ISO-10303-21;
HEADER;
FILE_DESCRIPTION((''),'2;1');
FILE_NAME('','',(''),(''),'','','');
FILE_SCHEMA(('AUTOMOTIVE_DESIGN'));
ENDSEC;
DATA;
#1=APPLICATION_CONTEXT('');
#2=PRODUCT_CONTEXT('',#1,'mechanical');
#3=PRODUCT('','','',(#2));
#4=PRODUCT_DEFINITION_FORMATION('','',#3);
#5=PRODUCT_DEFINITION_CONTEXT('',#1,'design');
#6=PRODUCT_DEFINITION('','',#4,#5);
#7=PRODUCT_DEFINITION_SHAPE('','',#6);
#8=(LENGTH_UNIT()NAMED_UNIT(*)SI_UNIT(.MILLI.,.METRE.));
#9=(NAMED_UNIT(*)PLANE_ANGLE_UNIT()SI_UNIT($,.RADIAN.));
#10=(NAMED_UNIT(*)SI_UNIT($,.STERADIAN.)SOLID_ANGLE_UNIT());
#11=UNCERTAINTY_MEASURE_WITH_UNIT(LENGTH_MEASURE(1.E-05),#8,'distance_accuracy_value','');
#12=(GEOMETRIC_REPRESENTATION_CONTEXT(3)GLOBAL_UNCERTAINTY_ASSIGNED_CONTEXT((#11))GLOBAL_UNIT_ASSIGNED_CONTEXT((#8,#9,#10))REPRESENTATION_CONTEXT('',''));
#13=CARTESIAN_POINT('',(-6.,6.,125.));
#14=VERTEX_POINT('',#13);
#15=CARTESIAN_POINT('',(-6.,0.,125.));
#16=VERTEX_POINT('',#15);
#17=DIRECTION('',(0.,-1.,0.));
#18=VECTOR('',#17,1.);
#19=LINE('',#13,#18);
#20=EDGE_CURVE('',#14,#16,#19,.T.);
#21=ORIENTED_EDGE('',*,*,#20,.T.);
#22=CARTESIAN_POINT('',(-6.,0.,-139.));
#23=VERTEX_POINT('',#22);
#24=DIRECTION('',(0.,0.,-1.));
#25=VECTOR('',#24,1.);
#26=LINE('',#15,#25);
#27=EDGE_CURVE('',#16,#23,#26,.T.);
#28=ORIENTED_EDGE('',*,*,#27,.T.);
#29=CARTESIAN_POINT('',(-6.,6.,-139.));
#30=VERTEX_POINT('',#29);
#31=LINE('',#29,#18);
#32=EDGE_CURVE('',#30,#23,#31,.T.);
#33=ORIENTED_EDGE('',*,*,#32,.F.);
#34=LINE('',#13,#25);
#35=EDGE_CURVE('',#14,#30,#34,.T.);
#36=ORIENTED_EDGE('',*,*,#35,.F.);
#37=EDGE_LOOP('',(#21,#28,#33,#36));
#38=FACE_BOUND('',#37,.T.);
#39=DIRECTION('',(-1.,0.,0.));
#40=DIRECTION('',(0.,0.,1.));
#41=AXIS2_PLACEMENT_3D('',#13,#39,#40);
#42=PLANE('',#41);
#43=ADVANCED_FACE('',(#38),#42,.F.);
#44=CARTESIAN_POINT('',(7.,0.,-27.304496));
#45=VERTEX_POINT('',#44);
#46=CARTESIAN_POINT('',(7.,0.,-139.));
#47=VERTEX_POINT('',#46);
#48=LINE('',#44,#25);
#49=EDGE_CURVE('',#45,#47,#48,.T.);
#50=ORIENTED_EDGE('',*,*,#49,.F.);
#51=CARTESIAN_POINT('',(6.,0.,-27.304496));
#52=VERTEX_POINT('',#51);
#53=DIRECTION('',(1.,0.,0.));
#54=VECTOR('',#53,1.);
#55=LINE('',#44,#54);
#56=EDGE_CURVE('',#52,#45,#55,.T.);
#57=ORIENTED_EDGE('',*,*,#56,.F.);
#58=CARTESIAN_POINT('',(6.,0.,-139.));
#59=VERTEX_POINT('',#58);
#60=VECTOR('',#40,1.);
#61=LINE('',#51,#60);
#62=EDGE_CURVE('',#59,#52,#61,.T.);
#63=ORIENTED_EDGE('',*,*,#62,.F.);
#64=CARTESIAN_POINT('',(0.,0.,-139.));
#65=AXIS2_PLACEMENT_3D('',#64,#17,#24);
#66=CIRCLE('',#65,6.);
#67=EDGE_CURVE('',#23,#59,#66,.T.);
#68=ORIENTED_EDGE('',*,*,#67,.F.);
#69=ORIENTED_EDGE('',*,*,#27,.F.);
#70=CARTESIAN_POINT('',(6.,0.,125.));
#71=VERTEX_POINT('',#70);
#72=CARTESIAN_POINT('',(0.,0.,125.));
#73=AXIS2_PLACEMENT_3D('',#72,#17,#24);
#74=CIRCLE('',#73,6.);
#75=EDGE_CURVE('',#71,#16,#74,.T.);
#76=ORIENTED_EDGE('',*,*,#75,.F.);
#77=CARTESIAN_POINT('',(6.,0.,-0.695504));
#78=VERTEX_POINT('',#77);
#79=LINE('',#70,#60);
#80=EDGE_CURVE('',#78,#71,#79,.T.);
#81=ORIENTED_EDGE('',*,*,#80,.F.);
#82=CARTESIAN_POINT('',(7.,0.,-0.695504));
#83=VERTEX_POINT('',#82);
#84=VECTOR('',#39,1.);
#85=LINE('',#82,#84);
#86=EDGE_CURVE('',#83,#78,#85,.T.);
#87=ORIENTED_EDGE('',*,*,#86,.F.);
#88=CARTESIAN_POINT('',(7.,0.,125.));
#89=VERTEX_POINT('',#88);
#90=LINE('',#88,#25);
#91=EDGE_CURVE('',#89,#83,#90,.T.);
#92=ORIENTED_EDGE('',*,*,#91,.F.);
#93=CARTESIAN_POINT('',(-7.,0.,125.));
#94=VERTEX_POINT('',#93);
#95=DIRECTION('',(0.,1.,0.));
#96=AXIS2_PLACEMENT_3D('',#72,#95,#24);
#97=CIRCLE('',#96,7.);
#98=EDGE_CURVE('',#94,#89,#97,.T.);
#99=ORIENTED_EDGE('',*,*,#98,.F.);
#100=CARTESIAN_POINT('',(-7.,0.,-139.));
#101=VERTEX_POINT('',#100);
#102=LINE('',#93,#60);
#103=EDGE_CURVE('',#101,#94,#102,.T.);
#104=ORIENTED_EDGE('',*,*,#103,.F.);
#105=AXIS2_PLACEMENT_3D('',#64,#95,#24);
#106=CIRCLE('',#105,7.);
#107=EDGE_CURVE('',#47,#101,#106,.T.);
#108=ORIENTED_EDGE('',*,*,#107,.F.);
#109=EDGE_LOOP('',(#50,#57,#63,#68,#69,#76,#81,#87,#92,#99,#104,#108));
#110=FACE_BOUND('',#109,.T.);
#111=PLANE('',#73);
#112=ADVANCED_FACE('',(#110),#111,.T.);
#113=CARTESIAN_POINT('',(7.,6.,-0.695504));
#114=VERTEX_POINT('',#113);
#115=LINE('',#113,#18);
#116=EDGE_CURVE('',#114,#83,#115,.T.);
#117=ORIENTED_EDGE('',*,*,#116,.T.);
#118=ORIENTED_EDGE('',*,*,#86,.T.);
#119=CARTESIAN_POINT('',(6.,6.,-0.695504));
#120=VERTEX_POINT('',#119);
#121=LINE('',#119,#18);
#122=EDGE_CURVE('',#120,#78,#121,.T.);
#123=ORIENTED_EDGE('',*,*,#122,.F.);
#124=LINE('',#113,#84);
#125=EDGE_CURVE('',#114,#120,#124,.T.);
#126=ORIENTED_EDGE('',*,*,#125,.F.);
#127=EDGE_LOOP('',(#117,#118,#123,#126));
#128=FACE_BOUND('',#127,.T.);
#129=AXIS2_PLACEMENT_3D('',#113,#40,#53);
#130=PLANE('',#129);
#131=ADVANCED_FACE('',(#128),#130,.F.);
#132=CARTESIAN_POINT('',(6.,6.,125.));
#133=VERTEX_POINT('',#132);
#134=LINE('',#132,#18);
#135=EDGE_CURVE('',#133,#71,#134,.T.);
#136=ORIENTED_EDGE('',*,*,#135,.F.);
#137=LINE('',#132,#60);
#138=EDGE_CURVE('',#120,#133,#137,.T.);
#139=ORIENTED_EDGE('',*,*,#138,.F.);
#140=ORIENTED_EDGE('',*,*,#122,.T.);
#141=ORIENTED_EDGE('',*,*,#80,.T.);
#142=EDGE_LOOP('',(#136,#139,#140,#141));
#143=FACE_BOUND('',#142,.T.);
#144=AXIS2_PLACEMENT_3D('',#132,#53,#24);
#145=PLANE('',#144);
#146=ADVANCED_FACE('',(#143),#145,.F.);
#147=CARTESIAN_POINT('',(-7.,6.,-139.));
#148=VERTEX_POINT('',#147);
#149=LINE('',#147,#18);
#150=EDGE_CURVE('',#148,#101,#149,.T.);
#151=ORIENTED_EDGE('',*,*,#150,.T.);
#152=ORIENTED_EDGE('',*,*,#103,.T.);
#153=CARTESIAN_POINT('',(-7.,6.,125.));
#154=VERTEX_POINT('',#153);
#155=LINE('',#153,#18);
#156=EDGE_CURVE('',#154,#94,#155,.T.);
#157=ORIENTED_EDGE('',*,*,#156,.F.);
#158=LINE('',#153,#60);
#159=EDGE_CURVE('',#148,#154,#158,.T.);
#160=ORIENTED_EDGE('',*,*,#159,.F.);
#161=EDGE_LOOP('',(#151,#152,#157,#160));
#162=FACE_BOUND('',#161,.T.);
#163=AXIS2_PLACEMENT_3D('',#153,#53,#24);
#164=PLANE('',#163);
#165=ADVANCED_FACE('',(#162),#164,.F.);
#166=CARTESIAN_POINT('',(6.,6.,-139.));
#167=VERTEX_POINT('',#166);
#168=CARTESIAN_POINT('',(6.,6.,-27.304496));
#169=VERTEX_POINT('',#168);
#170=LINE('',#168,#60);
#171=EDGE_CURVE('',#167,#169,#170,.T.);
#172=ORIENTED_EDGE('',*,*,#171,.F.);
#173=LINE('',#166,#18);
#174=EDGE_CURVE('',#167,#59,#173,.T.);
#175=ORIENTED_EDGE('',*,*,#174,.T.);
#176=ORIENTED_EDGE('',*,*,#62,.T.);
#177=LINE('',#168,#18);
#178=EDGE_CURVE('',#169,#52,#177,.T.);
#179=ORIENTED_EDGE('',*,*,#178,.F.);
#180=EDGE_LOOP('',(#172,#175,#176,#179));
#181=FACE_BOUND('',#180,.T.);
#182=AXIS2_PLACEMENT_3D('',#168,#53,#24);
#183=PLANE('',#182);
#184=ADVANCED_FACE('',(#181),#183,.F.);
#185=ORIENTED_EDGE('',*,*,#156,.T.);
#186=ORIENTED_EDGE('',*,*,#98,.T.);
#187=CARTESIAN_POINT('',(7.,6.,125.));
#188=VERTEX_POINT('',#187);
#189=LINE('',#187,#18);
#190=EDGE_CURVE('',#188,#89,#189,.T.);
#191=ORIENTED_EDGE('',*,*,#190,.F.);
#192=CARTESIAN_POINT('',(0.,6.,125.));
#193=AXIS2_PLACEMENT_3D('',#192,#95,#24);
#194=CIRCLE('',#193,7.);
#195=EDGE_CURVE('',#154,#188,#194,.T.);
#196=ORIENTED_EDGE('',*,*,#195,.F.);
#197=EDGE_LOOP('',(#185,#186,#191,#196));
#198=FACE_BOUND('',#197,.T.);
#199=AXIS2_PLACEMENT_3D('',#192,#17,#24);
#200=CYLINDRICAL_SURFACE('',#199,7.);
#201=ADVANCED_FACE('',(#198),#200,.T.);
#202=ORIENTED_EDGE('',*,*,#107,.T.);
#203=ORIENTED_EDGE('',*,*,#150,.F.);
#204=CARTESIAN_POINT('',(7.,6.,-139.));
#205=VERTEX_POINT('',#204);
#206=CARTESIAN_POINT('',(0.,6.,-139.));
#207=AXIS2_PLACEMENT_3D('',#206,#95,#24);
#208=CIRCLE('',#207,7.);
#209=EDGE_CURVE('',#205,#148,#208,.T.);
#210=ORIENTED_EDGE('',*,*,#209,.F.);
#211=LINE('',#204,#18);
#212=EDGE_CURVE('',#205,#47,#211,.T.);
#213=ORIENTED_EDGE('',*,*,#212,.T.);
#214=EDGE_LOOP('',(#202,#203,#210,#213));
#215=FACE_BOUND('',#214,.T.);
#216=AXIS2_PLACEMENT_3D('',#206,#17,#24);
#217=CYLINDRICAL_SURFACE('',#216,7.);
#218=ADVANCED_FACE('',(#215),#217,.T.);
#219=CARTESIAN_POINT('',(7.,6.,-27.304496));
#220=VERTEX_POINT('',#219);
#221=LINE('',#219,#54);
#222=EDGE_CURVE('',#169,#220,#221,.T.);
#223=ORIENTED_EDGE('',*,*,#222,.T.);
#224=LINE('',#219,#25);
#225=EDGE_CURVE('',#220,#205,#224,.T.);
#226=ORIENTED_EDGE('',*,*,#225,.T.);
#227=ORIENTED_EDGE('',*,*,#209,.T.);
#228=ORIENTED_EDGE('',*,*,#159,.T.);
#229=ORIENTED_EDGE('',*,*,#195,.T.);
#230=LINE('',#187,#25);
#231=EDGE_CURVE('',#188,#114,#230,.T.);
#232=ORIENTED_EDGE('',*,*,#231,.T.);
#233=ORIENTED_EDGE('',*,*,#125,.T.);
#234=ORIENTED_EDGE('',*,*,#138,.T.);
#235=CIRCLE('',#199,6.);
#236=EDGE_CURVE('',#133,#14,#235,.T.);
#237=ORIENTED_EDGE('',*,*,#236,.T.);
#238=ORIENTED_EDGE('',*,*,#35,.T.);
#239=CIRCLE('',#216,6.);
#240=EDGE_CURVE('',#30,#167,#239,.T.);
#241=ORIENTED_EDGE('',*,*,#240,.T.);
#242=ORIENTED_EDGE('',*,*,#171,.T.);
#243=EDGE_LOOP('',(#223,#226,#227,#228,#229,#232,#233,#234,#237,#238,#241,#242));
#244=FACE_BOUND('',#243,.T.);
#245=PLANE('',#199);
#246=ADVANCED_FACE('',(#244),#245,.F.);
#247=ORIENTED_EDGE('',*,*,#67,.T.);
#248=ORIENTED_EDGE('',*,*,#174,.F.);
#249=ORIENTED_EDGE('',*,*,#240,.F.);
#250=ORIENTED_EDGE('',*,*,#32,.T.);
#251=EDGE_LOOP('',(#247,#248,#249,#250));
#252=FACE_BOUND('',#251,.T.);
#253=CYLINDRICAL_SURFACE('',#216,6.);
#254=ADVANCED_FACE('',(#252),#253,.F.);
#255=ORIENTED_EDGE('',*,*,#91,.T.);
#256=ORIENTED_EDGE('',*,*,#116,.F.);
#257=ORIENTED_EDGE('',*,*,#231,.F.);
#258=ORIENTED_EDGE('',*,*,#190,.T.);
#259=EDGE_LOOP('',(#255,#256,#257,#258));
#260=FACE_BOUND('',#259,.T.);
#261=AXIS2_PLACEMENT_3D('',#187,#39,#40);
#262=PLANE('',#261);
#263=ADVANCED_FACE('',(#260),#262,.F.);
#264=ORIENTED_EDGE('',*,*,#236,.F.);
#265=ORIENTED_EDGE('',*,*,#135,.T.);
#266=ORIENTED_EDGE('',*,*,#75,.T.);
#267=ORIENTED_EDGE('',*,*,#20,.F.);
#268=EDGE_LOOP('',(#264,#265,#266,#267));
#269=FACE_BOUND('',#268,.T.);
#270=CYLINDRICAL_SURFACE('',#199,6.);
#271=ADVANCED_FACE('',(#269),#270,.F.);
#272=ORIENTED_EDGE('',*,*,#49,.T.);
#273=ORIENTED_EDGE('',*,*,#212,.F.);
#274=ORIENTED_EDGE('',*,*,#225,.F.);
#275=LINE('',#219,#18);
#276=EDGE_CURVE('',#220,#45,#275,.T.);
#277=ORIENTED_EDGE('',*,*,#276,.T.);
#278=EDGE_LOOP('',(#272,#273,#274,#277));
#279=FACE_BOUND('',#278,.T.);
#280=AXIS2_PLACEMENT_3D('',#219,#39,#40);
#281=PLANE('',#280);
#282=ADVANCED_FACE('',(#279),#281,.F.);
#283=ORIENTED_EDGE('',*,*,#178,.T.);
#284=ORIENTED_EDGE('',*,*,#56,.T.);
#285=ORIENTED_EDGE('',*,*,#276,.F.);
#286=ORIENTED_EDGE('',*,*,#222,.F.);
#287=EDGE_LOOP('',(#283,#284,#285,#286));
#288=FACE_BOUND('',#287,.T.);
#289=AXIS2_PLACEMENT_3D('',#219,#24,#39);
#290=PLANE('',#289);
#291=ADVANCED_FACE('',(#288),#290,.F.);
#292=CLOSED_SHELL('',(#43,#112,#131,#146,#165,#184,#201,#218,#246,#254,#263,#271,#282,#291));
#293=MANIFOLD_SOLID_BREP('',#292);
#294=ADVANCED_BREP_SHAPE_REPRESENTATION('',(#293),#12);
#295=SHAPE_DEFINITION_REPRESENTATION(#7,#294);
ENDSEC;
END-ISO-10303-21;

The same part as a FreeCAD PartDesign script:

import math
import FreeCAD as App
import Part
import Sketcher
Q = App.Units.Quantity

doc = App.newDocument("Part")
body = doc.addObject("PartDesign::Body", "Body")

# Sketch on XZ plane
sketch1 = doc.addObject("Sketcher::SketchObject", "Sketch")
body.addObject(sketch1)
sketch1.AttachmentSupport = (doc.XZ_Plane, [""])
sketch1.MapMode = "FlatFace"
sketch1.addGeometry([
    Part.LineSegment(App.Vector(-6, 125, 0), App.Vector(-6, -139, 0)),  # 0
    Part.ArcOfCircle(Part.Circle(App.Vector(0, -139, 0), App.Vector(0, 0, 1), 6), math.radians(180), math.radians(360)),  # 1
    Part.LineSegment(App.Vector(6, -139, 0), App.Vector(6, -27.3, 0)),  # 2
    Part.LineSegment(App.Vector(6, -27.3, 0), App.Vector(7, -27.3, 0)),  # 3
    Part.LineSegment(App.Vector(7, -27.3, 0), App.Vector(7, -139, 0)),  # 4
    Part.ArcOfCircle(Part.Circle(App.Vector(0, -139, 0), App.Vector(0, 0, 1), 7), math.radians(180), math.radians(360)),  # 5
    Part.LineSegment(App.Vector(-7, -139, 0), App.Vector(-7, 125, 0)),  # 6
    Part.ArcOfCircle(Part.Circle(App.Vector(0, 125, 0), App.Vector(0, 0, 1), 7), math.radians(0), math.radians(180)),  # 7
    Part.LineSegment(App.Vector(7, 125, 0), App.Vector(7, -0.7, 0)),  # 8
    Part.LineSegment(App.Vector(7, -0.7, 0), App.Vector(6, -0.7, 0)),  # 9
    Part.LineSegment(App.Vector(6, -0.7, 0), App.Vector(6, 125, 0)),  # 10
    Part.ArcOfCircle(Part.Circle(App.Vector(0, 125, 0), App.Vector(0, 0, 1), 6), math.radians(0), math.radians(180)),  # 11
], False)
sketch1.addConstraint([
    Sketcher.Constraint("Tangent", 0, 2, 1, 1),
    Sketcher.Constraint("Tangent", 1, 2, 2, 1),
    Sketcher.Constraint("Coincident", 2, 2, 3, 1),
    Sketcher.Constraint("Coincident", 3, 2, 4, 1),
    Sketcher.Constraint("Tangent", 4, 2, 5, 2),
    Sketcher.Constraint("Tangent", 5, 1, 6, 1),
    Sketcher.Constraint("Tangent", 6, 2, 7, 2),
    Sketcher.Constraint("Tangent", 7, 1, 8, 1),
    Sketcher.Constraint("Coincident", 8, 2, 9, 1),
    Sketcher.Constraint("Coincident", 9, 2, 10, 1),
    Sketcher.Constraint("Tangent", 10, 2, 11, 1),
    Sketcher.Constraint("Tangent", 11, 2, 0, 1),
    Sketcher.Constraint("Vertical", 0),
    Sketcher.Constraint("Vertical", 2),
    Sketcher.Constraint("Horizontal", 3),
    Sketcher.Constraint("Vertical", 4),
    Sketcher.Constraint("Vertical", 6),
    Sketcher.Constraint("Vertical", 8),
    Sketcher.Constraint("Horizontal", 9),
    Sketcher.Constraint("Vertical", 10),
    Sketcher.Constraint("Coincident", 5, 3, 1, 3),
    Sketcher.Constraint("Coincident", 11, 3, 7, 3),
    Sketcher.Constraint("Equal", 5, 7),
    Sketcher.Constraint("PointOnObject", 1, 3, -2),
    Sketcher.Constraint("Radius", 1, Q("6 mm")),
    Sketcher.Constraint("Radius", 5, Q("7 mm")),
    Sketcher.Constraint("DistanceY", 0, 2, 0, 1, Q("264 mm")),
    Sketcher.Constraint("DistanceY", 1, 3, -1, 1, Q("139 mm")),
    Sketcher.Constraint("DistanceY", 2, 1, 2, 2, Q("111.695504 mm")),
    Sketcher.Constraint("DistanceY", 8, 2, 8, 1, Q("125.695504 mm")),
])
pad1 = doc.addObject("PartDesign::Pad", "Pad")
body.addObject(pad1)
pad1.Profile = sketch1
pad1.Length = 6
pad1.Reversed = True

doc.recompute()
